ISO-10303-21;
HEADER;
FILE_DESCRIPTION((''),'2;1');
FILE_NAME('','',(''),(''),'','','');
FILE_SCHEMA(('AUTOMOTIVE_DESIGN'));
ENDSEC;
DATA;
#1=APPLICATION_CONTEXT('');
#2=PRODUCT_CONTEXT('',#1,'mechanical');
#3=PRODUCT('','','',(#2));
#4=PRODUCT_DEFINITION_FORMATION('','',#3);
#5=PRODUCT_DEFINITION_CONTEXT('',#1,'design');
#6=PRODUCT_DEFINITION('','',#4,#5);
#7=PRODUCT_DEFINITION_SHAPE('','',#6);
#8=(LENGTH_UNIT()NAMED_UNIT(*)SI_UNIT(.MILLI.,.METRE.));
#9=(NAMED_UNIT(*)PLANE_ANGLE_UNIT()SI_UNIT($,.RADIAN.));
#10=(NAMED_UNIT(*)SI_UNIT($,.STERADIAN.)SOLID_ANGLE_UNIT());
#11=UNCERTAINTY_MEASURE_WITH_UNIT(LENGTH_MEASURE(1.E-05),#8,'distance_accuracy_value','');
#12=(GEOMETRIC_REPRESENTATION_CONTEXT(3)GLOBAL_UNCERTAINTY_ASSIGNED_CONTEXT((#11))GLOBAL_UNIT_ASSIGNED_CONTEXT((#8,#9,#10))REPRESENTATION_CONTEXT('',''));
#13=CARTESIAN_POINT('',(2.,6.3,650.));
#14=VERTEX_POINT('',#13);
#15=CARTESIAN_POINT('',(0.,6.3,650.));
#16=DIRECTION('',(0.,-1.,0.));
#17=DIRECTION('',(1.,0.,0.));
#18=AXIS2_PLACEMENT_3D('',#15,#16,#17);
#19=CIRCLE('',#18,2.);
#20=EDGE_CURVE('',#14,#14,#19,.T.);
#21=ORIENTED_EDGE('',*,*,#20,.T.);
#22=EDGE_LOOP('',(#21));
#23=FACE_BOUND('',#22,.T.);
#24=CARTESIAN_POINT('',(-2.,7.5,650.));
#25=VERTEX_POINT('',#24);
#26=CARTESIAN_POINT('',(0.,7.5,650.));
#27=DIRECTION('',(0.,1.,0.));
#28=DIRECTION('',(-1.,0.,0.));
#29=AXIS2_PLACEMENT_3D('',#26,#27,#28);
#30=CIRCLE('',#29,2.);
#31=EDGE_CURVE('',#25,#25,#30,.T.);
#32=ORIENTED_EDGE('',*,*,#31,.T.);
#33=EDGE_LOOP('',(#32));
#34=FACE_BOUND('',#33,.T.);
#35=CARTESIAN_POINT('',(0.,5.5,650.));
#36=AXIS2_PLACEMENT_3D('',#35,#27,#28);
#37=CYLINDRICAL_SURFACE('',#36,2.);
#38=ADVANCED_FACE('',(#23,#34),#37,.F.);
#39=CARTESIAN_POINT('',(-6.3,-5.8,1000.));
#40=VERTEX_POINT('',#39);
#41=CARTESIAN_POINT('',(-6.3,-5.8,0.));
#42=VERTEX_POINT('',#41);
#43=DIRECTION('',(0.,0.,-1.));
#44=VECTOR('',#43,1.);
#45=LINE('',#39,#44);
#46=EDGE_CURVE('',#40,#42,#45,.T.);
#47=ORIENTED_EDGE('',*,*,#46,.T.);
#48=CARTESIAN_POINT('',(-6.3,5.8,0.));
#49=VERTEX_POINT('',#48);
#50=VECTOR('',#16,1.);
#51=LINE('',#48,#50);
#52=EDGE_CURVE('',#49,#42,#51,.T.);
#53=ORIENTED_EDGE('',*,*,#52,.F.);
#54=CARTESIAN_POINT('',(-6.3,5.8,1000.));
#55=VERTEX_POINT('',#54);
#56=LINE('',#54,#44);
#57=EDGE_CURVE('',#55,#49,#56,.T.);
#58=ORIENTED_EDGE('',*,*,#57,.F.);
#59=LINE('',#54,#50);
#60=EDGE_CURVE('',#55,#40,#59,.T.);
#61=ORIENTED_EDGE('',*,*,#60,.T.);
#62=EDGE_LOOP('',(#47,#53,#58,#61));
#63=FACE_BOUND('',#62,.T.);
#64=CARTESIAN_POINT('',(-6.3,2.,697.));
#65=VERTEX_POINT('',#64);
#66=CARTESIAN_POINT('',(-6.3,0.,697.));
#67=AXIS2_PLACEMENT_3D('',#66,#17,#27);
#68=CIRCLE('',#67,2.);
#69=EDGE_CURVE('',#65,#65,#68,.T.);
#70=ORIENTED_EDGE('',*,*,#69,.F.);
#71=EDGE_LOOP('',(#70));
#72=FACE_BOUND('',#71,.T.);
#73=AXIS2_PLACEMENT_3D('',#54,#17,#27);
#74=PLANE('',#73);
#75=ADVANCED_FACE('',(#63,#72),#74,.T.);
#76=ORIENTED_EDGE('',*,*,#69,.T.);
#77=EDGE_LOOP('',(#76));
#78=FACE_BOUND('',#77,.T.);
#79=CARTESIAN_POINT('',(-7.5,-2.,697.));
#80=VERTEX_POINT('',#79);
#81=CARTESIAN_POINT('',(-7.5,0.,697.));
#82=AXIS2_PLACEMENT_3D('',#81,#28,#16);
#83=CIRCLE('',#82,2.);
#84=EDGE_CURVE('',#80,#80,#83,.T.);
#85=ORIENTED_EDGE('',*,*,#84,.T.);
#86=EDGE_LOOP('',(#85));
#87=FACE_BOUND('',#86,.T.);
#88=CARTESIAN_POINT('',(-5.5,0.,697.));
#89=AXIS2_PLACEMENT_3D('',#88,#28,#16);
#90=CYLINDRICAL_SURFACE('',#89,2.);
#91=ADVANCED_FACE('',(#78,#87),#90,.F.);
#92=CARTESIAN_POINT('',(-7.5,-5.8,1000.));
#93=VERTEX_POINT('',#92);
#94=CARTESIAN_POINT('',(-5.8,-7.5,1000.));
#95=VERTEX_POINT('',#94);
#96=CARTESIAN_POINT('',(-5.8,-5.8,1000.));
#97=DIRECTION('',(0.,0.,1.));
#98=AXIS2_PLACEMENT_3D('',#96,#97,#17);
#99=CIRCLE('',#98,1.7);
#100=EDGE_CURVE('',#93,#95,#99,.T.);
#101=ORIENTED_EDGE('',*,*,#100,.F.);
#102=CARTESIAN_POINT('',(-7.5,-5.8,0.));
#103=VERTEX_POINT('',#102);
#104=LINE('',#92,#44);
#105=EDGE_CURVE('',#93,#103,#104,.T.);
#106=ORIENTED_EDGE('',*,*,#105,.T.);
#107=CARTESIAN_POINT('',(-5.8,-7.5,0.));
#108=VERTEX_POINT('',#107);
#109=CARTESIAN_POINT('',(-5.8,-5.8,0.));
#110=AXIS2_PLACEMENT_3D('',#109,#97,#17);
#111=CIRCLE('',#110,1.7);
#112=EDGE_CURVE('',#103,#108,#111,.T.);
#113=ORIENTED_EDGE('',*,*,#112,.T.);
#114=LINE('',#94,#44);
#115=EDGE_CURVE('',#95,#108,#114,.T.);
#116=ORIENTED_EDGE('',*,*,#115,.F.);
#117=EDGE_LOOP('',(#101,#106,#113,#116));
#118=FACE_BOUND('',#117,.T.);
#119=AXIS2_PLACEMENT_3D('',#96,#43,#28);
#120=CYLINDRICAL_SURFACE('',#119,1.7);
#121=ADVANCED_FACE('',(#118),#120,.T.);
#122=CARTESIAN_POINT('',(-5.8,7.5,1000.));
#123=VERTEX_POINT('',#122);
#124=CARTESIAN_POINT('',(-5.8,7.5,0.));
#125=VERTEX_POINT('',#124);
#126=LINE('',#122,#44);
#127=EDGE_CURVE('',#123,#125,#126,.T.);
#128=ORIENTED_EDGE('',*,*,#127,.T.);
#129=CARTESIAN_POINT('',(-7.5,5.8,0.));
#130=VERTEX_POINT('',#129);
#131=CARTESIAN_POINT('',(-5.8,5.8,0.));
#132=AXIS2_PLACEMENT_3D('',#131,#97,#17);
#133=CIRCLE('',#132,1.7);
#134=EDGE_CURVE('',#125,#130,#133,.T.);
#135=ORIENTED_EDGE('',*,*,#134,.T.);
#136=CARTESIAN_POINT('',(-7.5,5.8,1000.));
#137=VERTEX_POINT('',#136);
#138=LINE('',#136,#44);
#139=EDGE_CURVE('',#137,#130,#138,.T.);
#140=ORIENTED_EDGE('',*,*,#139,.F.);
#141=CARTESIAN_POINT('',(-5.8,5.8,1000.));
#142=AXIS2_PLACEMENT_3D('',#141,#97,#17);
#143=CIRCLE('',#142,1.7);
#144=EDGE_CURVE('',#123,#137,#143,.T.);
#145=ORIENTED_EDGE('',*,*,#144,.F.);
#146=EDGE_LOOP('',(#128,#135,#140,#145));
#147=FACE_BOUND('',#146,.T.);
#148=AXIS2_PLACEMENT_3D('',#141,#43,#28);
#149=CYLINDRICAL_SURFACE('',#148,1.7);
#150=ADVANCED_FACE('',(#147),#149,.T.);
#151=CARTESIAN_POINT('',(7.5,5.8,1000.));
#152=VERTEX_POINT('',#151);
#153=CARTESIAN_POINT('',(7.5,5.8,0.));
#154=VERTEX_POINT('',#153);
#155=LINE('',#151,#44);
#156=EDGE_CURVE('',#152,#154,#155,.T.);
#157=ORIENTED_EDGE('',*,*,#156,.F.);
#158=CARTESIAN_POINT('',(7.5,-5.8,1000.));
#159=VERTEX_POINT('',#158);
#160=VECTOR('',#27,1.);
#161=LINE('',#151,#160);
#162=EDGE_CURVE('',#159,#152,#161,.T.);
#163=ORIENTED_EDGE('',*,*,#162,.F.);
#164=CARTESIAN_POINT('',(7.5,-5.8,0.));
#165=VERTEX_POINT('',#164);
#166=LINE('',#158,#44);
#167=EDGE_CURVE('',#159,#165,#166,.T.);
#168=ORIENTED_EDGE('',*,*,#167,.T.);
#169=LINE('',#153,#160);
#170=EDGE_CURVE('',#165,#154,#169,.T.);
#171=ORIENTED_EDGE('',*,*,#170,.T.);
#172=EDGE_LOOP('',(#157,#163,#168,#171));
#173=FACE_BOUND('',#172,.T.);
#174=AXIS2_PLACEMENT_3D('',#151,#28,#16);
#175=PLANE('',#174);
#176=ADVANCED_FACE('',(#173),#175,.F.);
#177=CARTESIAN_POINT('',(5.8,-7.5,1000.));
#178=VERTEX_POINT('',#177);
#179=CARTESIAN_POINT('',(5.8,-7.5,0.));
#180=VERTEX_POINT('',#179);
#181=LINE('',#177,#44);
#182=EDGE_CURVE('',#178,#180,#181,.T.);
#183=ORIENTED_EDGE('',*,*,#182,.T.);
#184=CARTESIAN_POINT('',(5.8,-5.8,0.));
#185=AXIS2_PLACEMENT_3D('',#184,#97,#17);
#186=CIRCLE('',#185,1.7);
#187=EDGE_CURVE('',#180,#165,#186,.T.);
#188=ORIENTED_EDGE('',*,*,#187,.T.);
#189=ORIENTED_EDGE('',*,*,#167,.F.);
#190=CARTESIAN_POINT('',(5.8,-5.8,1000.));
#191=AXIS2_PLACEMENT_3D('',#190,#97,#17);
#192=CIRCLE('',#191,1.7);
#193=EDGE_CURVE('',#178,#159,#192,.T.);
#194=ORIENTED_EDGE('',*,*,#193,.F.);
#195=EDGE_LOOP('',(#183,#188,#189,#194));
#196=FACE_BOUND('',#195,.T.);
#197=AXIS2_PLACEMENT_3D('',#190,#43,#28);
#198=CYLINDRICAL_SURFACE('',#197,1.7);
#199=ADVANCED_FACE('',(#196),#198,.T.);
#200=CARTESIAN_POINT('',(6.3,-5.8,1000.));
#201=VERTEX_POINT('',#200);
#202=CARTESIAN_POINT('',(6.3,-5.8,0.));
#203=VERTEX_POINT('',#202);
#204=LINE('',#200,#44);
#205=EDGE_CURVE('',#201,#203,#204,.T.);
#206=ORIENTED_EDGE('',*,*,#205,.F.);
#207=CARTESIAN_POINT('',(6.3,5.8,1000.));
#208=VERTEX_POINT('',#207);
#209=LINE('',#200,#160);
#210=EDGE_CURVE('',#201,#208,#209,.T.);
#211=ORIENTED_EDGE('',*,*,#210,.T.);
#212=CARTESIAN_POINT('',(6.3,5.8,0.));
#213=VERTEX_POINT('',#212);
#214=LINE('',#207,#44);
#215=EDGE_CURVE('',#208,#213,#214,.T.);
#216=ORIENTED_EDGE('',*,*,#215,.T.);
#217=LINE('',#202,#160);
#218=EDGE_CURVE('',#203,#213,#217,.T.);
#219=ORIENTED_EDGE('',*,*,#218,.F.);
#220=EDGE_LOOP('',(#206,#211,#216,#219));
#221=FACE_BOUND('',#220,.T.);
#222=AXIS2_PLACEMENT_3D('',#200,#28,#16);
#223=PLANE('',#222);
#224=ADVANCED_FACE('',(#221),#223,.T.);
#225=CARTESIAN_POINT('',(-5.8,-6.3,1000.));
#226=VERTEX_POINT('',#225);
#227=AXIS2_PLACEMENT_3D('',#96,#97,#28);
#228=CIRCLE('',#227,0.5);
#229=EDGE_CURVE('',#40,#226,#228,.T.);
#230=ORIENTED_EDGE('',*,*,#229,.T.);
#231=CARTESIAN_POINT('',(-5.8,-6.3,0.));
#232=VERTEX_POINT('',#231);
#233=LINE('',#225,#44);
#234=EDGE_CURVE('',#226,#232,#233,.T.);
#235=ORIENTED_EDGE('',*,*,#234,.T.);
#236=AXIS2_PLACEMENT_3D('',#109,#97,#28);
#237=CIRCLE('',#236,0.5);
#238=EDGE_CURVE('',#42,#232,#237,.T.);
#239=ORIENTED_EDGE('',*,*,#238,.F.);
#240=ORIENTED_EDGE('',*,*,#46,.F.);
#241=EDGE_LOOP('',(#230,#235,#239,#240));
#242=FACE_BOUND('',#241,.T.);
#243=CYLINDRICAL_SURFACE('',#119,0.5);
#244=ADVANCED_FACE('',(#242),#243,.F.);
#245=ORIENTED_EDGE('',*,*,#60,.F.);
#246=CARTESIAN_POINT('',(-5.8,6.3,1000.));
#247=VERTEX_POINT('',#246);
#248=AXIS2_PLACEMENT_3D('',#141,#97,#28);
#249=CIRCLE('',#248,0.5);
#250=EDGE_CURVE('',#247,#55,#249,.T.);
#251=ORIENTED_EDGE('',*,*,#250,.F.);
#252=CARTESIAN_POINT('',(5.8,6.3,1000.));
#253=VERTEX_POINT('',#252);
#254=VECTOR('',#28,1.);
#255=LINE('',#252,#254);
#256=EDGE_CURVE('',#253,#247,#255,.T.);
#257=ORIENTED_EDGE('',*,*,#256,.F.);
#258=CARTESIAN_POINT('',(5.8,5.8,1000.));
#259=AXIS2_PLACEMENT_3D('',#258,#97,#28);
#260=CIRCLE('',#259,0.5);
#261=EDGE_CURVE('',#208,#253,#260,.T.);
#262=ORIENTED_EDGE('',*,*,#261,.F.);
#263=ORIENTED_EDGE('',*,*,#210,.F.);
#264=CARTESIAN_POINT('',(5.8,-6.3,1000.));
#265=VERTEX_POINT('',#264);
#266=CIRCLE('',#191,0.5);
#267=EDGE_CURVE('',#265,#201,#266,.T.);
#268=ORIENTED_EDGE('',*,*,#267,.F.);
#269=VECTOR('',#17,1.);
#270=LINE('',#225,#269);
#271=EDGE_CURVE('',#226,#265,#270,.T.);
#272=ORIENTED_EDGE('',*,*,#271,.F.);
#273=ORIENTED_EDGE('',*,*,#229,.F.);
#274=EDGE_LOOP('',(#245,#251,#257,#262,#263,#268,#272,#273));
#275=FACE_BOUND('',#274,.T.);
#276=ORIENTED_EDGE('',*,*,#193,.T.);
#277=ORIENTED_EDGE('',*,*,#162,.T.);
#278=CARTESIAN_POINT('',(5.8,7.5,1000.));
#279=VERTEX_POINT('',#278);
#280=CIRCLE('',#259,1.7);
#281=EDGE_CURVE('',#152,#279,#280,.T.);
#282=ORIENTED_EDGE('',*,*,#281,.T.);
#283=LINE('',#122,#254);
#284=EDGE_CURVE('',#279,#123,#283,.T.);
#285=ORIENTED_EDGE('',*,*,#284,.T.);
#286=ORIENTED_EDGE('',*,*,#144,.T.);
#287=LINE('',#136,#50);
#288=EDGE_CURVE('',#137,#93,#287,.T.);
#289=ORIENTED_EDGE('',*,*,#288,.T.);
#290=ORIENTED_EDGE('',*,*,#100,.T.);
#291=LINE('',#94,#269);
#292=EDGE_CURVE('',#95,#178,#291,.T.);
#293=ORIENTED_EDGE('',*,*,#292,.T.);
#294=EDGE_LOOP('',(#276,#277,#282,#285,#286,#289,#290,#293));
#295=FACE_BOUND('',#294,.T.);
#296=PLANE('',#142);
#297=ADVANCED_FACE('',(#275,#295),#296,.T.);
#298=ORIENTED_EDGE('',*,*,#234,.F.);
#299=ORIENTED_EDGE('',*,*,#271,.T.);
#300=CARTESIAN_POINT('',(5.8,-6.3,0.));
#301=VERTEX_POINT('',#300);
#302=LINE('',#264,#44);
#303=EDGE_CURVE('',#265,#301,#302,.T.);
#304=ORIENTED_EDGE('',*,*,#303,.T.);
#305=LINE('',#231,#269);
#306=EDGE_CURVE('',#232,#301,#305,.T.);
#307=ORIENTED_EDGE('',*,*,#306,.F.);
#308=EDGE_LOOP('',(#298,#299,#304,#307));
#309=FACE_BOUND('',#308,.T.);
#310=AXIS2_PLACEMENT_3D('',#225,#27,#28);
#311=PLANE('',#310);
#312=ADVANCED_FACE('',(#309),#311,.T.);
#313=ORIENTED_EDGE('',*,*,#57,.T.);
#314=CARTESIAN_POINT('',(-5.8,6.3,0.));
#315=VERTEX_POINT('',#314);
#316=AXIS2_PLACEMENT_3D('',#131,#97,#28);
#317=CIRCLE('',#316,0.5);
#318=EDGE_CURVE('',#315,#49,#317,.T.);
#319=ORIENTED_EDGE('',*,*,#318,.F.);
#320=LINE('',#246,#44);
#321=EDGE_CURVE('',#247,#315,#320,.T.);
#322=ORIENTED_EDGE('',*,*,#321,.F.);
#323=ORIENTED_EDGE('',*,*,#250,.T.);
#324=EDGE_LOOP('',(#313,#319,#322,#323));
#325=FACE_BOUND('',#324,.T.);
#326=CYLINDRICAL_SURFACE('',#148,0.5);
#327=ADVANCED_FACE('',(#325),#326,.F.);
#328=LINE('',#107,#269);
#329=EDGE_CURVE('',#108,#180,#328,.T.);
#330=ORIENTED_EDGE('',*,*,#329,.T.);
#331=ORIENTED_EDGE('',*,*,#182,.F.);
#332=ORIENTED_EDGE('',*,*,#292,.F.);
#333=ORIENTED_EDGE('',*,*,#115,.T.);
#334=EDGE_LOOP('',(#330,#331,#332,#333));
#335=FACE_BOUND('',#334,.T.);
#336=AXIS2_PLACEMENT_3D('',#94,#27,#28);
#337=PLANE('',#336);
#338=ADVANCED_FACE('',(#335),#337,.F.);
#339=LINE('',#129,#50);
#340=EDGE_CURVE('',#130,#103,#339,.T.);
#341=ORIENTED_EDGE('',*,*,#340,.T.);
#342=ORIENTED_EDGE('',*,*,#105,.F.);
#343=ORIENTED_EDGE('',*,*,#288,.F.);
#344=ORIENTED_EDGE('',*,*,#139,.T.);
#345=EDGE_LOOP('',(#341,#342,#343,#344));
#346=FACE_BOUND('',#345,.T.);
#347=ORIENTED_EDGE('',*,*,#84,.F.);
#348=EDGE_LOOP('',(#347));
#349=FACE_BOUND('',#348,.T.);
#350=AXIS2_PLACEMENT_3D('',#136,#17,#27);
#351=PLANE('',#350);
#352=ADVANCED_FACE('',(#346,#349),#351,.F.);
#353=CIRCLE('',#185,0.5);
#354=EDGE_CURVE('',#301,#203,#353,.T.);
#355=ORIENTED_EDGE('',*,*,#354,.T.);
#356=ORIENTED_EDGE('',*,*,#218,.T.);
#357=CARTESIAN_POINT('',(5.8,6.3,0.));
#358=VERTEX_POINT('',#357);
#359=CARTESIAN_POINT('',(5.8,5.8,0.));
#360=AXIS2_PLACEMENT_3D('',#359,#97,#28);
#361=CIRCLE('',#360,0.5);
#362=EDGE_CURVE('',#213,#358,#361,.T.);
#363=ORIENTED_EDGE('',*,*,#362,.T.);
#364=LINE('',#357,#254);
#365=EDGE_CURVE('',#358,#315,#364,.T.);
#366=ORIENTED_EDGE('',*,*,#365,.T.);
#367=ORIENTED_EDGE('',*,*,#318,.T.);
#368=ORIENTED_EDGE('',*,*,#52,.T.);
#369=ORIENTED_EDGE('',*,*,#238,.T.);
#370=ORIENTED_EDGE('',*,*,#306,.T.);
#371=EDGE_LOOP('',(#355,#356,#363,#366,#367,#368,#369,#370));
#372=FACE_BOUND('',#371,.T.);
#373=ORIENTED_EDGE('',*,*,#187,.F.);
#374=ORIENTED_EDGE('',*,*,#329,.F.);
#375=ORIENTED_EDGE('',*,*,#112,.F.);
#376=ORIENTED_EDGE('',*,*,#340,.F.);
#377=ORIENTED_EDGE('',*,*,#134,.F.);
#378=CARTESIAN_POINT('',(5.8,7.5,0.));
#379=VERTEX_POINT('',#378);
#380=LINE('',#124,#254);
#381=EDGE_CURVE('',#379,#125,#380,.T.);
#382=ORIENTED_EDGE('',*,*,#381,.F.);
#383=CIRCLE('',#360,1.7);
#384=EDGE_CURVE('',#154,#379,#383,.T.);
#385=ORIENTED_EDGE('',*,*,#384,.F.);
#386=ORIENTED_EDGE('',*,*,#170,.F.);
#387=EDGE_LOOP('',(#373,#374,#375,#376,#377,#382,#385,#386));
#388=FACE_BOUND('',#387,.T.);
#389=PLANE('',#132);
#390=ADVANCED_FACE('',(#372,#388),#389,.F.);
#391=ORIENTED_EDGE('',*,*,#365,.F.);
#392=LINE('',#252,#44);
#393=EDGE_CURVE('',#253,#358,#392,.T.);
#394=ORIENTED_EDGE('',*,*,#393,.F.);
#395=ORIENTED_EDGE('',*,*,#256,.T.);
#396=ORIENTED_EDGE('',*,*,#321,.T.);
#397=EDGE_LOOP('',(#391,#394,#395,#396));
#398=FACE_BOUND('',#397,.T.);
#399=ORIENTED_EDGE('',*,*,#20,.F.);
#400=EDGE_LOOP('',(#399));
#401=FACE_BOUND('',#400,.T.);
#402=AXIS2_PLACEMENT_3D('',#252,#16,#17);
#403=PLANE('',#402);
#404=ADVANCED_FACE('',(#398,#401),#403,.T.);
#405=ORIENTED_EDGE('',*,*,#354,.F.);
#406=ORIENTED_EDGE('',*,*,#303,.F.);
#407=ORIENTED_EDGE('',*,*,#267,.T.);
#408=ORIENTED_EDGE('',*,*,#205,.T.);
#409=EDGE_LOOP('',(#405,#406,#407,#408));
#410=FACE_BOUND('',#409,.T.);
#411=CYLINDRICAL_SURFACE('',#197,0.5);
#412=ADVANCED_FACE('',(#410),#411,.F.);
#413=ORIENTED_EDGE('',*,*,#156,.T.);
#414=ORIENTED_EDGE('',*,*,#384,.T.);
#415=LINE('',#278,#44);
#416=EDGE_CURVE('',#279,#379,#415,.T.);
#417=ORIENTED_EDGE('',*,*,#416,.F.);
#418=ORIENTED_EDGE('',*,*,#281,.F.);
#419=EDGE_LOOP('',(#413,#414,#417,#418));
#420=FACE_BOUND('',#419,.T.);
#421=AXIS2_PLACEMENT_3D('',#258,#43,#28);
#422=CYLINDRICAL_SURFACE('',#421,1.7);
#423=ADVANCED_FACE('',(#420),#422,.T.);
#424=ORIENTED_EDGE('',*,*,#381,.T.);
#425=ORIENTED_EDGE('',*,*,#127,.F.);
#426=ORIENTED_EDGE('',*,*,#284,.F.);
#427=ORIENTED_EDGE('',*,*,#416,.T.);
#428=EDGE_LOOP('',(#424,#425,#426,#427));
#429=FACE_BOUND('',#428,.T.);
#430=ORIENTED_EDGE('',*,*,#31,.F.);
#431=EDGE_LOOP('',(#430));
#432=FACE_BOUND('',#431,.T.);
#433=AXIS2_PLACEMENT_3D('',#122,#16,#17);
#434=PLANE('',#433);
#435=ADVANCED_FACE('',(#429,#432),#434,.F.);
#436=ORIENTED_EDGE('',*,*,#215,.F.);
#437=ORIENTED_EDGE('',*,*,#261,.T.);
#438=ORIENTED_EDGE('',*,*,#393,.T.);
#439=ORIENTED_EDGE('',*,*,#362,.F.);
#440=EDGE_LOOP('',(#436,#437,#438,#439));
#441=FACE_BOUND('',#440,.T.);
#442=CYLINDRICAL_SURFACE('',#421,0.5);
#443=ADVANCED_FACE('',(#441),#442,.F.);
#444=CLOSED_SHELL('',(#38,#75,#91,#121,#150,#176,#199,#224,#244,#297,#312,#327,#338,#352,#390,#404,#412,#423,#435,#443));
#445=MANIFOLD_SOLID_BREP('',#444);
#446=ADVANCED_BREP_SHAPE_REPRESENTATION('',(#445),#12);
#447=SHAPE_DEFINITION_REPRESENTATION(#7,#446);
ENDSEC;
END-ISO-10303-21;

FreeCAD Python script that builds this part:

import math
import FreeCAD as App
import Part
import Sketcher
from FreeCAD import Vector

doc = App.newDocument("Part")
body = doc.addObject("PartDesign::Body", "Body")

# Sketch on XY plane
sketch1 = body.newObject("Sketcher::SketchObject", "Sketch")
sketch1.AttachmentSupport = (doc.getObject("XY_Plane"), [""])
sketch1.MapMode = "FlatFace"
sketch1.addGeometry(Part.LineSegment(Vector(5.8, 7.5, 0), Vector(-5.8, 7.5, 0)), False)
sketch1.addGeometry(Part.ArcOfCircle(Part.Circle(Vector(-5.8, 5.8, 0), Vector(0, 0, 1), 1.7), math.radians(90), math.radians(180)), False)
sketch1.addGeometry(Part.LineSegment(Vector(-7.5, 5.8, 0), Vector(-7.5, -5.8, 0)), False)
sketch1.addGeometry(Part.ArcOfCircle(Part.Circle(Vector(-5.8, -5.8, 0), Vector(0, 0, 1), 1.7), math.radians(180), math.radians(270)), False)
sketch1.addGeometry(Part.LineSegment(Vector(-5.8, -7.5, 0), Vector(5.8, -7.5, 0)), False)
sketch1.addGeometry(Part.ArcOfCircle(Part.Circle(Vector(5.8, -5.8, 0), Vector(0, 0, 1), 1.7), math.radians(-90), math.radians(0)), False)
sketch1.addGeometry(Part.LineSegment(Vector(7.5, -5.8, 0), Vector(7.5, 5.8, 0)), False)
sketch1.addGeometry(Part.ArcOfCircle(Part.Circle(Vector(5.8, 5.8, 0), Vector(0, 0, 1), 1.7), math.radians(0), math.radians(90)), False)
sketch1.addGeometry(Part.ArcOfCircle(Part.Circle(Vector(-5.8, 5.8, 0), Vector(0, 0, 1), 0.5), math.radians(90), math.radians(180)), False)
sketch1.addGeometry(Part.LineSegment(Vector(-5.8, 6.3, 0), Vector(5.8, 6.3, 0)), False)
sketch1.addGeometry(Part.ArcOfCircle(Part.Circle(Vector(5.8, 5.8, 0), Vector(0, 0, 1), 0.5), math.radians(0), math.radians(90)), False)
sketch1.addGeometry(Part.LineSegment(Vector(6.3, 5.8, 0), Vector(6.3, -5.8, 0)), False)
sketch1.addGeometry(Part.ArcOfCircle(Part.Circle(Vector(5.8, -5.8, 0), Vector(0, 0, 1), 0.5), math.radians(-90), math.radians(0)), False)
sketch1.addGeometry(Part.LineSegment(Vector(5.8, -6.3, 0), Vector(-5.8, -6.3, 0)), False)
sketch1.addGeometry(Part.ArcOfCircle(Part.Circle(Vector(-5.8, -5.8, 0), Vector(0, 0, 1), 0.5), math.radians(180), math.radians(270)), False)
sketch1.addGeometry(Part.LineSegment(Vector(-6.3, -5.8, 0), Vector(-6.3, 5.8, 0)), False)
sketch1.addConstraint(Sketcher.Constraint("Tangent", 0, 2, 1, 1))
sketch1.addConstraint(Sketcher.Constraint("Tangent", 1, 2, 2, 1))
sketch1.addConstraint(Sketcher.Constraint("Tangent", 2, 2, 3, 1))
sketch1.addConstraint(Sketcher.Constraint("Tangent", 3, 2, 4, 1))
sketch1.addConstraint(Sketcher.Constraint("Tangent", 4, 2, 5, 1))
sketch1.addConstraint(Sketcher.Constraint("Tangent", 5, 2, 6, 1))
sketch1.addConstraint(Sketcher.Constraint("Tangent", 6, 2, 7, 1))
sketch1.addConstraint(Sketcher.Constraint("Tangent", 7, 2, 0, 1))
sketch1.addConstraint(Sketcher.Constraint("Tangent", 8, 1, 9, 1))
sketch1.addConstraint(Sketcher.Constraint("Tangent", 9, 2, 10, 2))
sketch1.addConstraint(Sketcher.Constraint("Tangent", 10, 1, 11, 1))
sketch1.addConstraint(Sketcher.Constraint("Tangent", 11, 2, 12, 2))
sketch1.addConstraint(Sketcher.Constraint("Tangent", 12, 1, 13, 1))
sketch1.addConstraint(Sketcher.Constraint("Tangent", 13, 2, 14, 2))
sketch1.addConstraint(Sketcher.Constraint("Tangent", 14, 1, 15, 1))
sketch1.addConstraint(Sketcher.Constraint("Tangent", 15, 2, 8, 2))
sketch1.addConstraint(Sketcher.Constraint("Horizontal", 0))
sketch1.addConstraint(Sketcher.Constraint("Vertical", 2))
sketch1.addConstraint(Sketcher.Constraint("Horizontal", 4))
sketch1.addConstraint(Sketcher.Constraint("Vertical", 6))
sketch1.addConstraint(Sketcher.Constraint("Horizontal", 9))
sketch1.addConstraint(Sketcher.Constraint("Vertical", 11))
sketch1.addConstraint(Sketcher.Constraint("Horizontal", 13))
sketch1.addConstraint(Sketcher.Constraint("Vertical", 15))
sketch1.addConstraint(Sketcher.Constraint("Coincident", 8, 3, 1, 3))
sketch1.addConstraint(Sketcher.Constraint("Coincident", 10, 3, 7, 3))
sketch1.addConstraint(Sketcher.Constraint("Coincident", 12, 3, 5, 3))
sketch1.addConstraint(Sketcher.Constraint("Equal", 1, 3))
sketch1.addConstraint(Sketcher.Constraint("Equal", 3, 5))
sketch1.addConstraint(Sketcher.Constraint("Equal", 5, 7))
sketch1.addConstraint(Sketcher.Constraint("Equal", 12, 14))
sketch1.addConstraint(Sketcher.Constraint("Symmetric", 1, 3, 5, 3, -1, 1))
sketch1.addConstraint(Sketcher.Constraint("Equal", 13, 2))
sketch1.addConstraint(Sketcher.Constraint("Radius", 1, 1.7))
sketch1.addConstraint(Sketcher.Constraint("Radius", 8, 0.5))
sketch1.addConstraint(Sketcher.Constraint("DistanceX", 0, 2, 0, 1, 11.6))
pad1 = body.newObject("PartDesign::Pad", "Pad")
pad1.Profile = sketch1
pad1.Length = 1000

# Sketch on YZ plane
sketch2 = body.newObject("Sketcher::SketchObject", "Sketch001")
sketch2.AttachmentSupport = (doc.getObject("YZ_Plane"), [""])
sketch2.MapMode = "FlatFace"
sketch2.AttachmentOffset = App.Placement(Vector(0, 0, -7.5), App.Rotation())
sketch2.addGeometry(Part.Circle(Vector(0, 697, 0), Vector(0, 0, 1), 2), False)
sketch2.addConstraint(Sketcher.Constraint("PointOnObject", 0, 3, -2))
sketch2.addConstraint(Sketcher.Constraint("Diameter", 0, 4.0))
sketch2.addConstraint(Sketcher.Constraint("DistanceY", -1, 1, 0, 3, 697.0))
pocket1 = body.newObject("PartDesign::Pocket", "Pocket")
pocket1.Profile = sketch2
pocket1.Length = 2
pocket1.Reversed = True

# Sketch on XZ plane
sketch3 = body.newObject("Sketcher::SketchObject", "Sketch002")
sketch3.AttachmentSupport = (doc.getObject("XZ_Plane"), [""])
sketch3.MapMode = "FlatFace"
sketch3.AttachmentOffset = App.Placement(Vector(0, 0, -7.5), App.Rotation())
sketch3.addGeometry(Part.Circle(Vector(0, 650, 0), Vector(0, 0, 1), 2), False)
sketch3.addConstraint(Sketcher.Constraint("PointOnObject", 0, 3, -2))
sketch3.addConstraint(Sketcher.Constraint("Diameter", 0, 4.0))
sketch3.addConstraint(Sketcher.Constraint("DistanceY", -1, 1, 0, 3, 650.0))
pocket2 = body.newObject("PartDesign::Pocket", "Pocket001")
pocket2.Profile = sketch3
pocket2.Length = 2
pocket2.Reversed = True

doc.recompute()
